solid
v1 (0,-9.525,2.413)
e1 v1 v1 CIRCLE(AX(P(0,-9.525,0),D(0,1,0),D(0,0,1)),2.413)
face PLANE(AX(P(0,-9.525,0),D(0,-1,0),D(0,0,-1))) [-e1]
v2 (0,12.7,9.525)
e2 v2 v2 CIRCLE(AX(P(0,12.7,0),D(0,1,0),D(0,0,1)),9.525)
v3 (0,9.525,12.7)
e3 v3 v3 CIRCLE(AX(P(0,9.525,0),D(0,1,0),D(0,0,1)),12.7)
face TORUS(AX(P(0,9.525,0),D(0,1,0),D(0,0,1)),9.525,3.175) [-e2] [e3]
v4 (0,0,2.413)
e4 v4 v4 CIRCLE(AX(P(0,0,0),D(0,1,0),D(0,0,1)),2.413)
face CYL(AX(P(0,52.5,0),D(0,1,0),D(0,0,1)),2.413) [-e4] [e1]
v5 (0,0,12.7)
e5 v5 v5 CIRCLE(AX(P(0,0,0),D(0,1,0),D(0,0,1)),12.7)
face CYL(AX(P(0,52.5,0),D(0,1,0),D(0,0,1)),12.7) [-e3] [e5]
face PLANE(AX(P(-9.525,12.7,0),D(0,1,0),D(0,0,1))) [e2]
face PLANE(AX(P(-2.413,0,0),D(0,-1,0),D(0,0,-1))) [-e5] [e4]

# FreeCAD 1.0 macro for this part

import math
import FreeCAD as App
import Part
import Sketcher

V = App.Vector
Q = App.Units.Quantity

doc = App.newDocument("Part")
body = doc.addObject("PartDesign::Body", "Body")

sketch1 = body.newObject("Sketcher::SketchObject", "Sketch")
sketch1.AttachmentSupport = (doc.getObject("XY_Plane"), [""])
sketch1.MapMode = "FlatFace"
sketch1.addGeometry([
    Part.LineSegment(V(-2.413, -9.525, 0), V(0, -9.525, 0)),
    Part.LineSegment(V(0, -9.525, 0), V(0, 12.7, 0)),
    Part.LineSegment(V(0, 12.7, 0), V(-9.525, 12.7, 0)),
    Part.ArcOfCircle(Part.Circle(V(-9.525, 9.525, 0), V(0, 0, 1), 3.175), math.radians(90), math.radians(180)),
    Part.LineSegment(V(-12.7, 9.525, 0), V(-12.7, 0, 0)),
    Part.LineSegment(V(-12.7, 0, 0), V(-2.413, 0, 0)),
    Part.LineSegment(V(-2.413, 0, 0), V(-2.413, -9.525, 0)),
], False)
sketch1.addConstraint([
    Sketcher.Constraint("Coincident", 0, 2, 1, 1),
    Sketcher.Constraint("Coincident", 1, 2, 2, 1),
    Sketcher.Constraint("Tangent", 2, 2, 3, 1),
    Sketcher.Constraint("Tangent", 3, 2, 4, 1),
    Sketcher.Constraint("Coincident", 4, 2, 5, 1),
    Sketcher.Constraint("Coincident", 5, 2, 6, 1),
    Sketcher.Constraint("Coincident", 6, 2, 0, 1),
    Sketcher.Constraint("Horizontal", 0),
    Sketcher.Constraint("Vertical", 1),
    Sketcher.Constraint("Horizontal", 2),
    Sketcher.Constraint("Vertical", 4),
    Sketcher.Constraint("Horizontal", 5),
    Sketcher.Constraint("Vertical", 6),
    Sketcher.Constraint("PointOnObject", 0, 2, -2),
    Sketcher.Constraint("PointOnObject", 4, 2, -1),
    Sketcher.Constraint("Equal", 2, 4),
    Sketcher.Constraint("Equal", 4, 6),
    Sketcher.Constraint("Radius", 3, Q("0.125 in")),
    Sketcher.Constraint("DistanceY", -1, 1, 1, 2, Q("0.5 in")),
    Sketcher.Constraint("DistanceX", 0, 1, 0, 2, Q("0.095 in")),
])
revolution = body.newObject("PartDesign::Revolution", "Revolution")
revolution.Profile = sketch1
revolution.ReferenceAxis = (sketch1, ["V_Axis"])
revolution.Angle = 360

doc.recompute()
